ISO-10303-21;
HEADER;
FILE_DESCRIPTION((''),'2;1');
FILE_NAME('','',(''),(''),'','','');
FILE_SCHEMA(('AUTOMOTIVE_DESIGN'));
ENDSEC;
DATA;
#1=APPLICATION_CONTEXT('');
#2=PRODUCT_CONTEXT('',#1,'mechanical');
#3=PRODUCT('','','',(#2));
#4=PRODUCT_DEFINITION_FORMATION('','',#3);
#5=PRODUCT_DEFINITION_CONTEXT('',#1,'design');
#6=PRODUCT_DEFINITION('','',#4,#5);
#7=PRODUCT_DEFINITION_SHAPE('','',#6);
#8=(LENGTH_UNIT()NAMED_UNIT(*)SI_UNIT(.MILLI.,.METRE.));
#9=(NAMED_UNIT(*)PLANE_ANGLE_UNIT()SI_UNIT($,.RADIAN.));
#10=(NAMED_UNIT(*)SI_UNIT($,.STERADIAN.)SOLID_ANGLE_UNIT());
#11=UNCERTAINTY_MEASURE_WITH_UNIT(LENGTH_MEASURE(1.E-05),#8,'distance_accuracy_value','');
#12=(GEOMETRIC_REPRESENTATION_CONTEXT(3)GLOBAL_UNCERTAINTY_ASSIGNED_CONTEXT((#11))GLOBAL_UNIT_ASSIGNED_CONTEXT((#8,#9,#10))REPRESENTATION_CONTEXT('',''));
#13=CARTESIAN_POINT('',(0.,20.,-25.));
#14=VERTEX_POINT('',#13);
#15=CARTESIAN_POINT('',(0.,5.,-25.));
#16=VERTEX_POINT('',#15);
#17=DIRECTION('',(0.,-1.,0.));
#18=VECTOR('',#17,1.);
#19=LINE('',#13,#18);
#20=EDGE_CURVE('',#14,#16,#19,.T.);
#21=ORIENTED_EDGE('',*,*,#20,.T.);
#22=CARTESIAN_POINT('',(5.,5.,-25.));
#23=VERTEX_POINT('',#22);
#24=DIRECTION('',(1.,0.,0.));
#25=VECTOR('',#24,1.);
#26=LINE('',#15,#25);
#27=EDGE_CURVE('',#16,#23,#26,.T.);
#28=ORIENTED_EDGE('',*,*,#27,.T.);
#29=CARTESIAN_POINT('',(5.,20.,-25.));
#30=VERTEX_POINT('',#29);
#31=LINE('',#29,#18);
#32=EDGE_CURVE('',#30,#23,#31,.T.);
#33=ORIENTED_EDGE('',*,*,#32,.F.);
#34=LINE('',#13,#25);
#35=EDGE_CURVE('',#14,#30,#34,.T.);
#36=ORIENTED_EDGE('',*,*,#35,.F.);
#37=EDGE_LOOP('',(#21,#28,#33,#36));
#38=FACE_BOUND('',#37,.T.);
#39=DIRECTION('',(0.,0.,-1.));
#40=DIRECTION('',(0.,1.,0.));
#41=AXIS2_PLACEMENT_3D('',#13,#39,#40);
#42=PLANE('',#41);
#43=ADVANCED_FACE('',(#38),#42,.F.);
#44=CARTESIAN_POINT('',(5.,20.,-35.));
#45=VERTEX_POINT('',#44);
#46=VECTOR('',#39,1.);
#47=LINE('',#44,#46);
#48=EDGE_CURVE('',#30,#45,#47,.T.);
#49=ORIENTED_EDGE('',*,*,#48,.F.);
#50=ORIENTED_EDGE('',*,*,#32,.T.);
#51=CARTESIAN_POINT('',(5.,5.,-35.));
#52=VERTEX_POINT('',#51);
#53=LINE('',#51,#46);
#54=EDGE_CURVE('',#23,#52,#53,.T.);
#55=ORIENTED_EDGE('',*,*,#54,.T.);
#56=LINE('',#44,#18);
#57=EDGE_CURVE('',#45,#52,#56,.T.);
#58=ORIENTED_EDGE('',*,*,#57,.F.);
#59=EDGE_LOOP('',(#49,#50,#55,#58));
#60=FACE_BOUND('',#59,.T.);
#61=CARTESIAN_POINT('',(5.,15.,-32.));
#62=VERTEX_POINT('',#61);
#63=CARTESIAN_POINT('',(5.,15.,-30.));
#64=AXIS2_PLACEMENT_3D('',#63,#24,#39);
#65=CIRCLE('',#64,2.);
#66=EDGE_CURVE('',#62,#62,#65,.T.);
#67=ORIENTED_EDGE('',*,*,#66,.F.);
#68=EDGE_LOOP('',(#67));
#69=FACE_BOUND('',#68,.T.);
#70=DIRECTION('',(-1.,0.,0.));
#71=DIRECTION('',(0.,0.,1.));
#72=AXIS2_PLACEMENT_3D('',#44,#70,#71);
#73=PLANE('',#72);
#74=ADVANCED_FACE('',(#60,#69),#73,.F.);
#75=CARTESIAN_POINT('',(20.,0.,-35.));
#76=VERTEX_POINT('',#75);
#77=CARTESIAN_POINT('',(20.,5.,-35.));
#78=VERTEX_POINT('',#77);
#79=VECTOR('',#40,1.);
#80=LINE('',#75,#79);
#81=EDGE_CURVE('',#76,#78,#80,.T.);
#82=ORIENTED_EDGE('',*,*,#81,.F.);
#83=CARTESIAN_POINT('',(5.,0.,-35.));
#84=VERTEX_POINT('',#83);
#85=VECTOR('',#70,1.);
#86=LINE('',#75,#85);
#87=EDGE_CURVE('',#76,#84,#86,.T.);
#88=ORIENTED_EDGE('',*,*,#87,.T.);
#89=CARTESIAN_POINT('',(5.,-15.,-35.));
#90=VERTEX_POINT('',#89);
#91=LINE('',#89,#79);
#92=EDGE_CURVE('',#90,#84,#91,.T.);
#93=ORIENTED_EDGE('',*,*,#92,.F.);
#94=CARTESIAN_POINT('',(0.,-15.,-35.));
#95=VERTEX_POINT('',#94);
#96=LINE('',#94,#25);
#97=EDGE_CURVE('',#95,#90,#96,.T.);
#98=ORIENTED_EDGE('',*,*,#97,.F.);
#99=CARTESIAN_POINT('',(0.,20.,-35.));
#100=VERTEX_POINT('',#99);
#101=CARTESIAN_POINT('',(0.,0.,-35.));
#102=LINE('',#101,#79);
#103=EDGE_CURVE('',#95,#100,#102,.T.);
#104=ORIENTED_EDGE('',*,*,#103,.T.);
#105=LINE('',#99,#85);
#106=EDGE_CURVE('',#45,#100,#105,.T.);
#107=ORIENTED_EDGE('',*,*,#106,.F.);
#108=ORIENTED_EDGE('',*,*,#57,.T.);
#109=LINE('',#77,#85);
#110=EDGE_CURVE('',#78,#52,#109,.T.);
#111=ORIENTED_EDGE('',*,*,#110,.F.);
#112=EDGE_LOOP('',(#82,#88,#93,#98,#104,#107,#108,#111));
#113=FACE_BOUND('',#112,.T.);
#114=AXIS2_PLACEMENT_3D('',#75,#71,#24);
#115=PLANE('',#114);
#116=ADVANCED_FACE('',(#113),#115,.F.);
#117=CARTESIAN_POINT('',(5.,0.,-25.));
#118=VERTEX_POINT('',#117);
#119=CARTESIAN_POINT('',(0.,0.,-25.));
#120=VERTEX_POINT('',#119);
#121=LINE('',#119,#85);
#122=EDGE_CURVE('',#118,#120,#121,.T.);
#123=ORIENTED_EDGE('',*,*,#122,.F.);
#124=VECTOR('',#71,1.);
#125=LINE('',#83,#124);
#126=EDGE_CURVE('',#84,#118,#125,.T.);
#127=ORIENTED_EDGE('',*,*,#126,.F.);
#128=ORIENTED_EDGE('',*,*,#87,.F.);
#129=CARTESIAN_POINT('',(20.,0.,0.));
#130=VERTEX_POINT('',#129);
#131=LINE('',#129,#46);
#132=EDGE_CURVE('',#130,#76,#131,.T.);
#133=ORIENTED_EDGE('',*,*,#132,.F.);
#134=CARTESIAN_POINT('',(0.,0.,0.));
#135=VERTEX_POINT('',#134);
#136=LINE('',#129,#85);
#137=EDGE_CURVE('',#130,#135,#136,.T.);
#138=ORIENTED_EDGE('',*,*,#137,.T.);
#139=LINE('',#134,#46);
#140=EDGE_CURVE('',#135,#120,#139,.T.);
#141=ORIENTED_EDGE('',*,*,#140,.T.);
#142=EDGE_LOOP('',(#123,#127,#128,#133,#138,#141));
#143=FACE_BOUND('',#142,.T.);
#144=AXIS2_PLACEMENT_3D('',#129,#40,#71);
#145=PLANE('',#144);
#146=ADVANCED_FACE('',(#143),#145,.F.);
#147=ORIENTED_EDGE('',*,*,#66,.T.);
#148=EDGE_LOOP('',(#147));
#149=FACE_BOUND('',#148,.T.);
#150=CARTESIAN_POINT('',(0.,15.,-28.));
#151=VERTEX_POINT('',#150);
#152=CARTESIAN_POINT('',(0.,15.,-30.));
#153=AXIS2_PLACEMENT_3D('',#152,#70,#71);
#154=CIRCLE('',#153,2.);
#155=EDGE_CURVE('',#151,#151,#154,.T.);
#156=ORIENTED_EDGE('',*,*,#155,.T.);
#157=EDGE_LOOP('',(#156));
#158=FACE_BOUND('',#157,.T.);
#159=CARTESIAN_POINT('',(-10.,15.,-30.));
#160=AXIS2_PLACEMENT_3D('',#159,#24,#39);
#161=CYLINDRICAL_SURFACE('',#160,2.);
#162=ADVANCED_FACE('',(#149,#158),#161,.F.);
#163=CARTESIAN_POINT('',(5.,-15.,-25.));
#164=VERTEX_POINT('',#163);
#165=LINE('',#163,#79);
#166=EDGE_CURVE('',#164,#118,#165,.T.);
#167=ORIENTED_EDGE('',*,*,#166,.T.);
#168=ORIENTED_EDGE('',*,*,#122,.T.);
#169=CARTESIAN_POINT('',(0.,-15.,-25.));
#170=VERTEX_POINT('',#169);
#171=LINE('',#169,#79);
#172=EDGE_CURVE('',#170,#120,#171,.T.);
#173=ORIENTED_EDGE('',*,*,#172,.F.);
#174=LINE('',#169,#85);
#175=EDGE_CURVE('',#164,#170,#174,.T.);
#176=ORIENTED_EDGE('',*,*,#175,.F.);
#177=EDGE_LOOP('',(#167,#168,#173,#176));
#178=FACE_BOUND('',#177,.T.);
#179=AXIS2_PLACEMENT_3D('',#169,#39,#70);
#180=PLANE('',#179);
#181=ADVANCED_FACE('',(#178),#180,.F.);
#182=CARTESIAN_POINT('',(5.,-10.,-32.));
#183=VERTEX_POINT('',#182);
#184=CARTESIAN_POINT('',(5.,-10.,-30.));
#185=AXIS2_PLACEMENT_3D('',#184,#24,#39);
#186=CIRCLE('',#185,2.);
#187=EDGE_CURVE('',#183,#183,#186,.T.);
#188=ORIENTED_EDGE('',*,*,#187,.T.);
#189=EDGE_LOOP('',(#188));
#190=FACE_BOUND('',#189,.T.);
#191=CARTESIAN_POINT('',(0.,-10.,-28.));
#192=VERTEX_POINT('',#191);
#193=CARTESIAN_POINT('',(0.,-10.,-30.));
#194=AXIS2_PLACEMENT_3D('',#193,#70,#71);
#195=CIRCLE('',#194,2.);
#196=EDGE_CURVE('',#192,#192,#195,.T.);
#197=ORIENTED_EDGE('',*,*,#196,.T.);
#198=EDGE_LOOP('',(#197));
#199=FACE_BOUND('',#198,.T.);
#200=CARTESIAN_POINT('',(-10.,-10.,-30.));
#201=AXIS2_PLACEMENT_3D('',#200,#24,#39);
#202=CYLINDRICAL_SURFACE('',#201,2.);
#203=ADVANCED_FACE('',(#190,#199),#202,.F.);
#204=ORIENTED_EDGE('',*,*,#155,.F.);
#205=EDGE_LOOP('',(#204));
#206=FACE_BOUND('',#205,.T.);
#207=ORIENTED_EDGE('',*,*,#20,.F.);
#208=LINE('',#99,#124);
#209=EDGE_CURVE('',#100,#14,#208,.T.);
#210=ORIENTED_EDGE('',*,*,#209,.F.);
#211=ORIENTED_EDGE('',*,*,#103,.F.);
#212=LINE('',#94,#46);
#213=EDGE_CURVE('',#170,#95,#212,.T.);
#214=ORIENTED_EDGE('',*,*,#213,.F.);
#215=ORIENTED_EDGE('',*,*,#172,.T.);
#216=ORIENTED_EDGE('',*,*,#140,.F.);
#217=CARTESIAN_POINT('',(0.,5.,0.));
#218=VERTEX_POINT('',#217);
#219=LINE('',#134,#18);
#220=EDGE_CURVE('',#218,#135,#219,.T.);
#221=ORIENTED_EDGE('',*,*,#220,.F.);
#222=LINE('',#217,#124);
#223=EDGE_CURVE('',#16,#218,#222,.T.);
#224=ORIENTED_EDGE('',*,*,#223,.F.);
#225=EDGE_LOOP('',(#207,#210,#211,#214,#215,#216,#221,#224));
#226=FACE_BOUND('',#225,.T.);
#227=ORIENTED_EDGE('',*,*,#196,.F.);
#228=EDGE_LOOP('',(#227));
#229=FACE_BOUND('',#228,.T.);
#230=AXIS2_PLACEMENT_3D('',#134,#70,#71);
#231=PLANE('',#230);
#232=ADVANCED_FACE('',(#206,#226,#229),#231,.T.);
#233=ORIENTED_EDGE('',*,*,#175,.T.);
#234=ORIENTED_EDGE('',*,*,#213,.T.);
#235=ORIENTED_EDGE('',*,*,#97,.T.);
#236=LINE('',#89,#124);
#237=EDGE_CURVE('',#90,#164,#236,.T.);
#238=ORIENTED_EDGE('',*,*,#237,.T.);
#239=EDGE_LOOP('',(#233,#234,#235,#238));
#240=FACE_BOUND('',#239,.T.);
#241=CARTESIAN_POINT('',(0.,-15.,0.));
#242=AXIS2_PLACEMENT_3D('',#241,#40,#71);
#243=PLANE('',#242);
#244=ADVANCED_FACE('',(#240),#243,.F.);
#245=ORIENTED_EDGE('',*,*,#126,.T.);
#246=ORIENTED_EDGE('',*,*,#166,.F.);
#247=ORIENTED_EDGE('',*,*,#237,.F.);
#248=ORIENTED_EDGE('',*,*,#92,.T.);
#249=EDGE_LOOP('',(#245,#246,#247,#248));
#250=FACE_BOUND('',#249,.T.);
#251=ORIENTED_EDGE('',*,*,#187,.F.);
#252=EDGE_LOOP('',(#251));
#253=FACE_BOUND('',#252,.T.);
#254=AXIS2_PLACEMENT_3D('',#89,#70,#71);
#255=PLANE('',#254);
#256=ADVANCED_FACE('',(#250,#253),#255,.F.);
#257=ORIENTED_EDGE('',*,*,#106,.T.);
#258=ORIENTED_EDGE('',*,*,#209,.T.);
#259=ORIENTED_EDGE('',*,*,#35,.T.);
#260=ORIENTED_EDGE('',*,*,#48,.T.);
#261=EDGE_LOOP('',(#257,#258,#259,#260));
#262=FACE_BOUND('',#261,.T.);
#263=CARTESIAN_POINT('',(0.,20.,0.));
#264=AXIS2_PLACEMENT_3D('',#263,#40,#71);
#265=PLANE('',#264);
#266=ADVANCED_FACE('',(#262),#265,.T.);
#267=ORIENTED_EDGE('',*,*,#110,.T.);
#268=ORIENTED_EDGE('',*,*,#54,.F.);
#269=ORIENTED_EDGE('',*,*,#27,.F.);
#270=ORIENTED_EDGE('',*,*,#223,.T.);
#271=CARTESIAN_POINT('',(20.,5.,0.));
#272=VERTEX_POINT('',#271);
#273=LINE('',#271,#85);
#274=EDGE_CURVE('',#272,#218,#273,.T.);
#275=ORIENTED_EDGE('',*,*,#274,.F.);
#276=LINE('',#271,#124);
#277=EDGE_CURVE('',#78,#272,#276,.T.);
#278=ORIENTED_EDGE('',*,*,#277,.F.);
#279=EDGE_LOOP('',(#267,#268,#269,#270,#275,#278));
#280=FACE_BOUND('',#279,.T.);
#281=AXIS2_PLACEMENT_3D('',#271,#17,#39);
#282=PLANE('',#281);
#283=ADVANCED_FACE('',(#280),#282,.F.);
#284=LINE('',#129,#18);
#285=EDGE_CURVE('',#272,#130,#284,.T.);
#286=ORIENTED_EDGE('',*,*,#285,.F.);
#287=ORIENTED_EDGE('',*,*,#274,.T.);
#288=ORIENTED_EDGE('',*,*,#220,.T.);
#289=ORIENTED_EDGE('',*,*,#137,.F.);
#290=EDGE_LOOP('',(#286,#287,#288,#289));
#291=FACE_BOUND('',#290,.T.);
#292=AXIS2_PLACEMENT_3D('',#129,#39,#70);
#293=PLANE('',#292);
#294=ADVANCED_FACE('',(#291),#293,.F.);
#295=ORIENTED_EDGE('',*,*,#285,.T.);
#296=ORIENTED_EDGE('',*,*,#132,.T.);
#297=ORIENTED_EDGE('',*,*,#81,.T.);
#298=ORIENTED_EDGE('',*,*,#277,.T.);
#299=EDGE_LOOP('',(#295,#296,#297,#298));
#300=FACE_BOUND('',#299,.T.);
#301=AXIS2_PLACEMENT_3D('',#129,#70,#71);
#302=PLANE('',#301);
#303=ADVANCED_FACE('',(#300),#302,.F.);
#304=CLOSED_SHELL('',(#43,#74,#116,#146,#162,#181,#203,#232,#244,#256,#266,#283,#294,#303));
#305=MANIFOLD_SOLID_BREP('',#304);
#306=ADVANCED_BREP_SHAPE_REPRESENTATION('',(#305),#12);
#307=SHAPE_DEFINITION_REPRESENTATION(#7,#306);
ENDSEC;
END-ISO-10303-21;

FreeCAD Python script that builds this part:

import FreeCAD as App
import Part
import Sketcher

V = App.Vector


def add_polygon(sketch, points):
    """Adds a closed chain of lines whose ends are joined by coincident constraints."""
    first, n = sketch.GeometryCount, len(points)
    for a, b in zip(points, points[1:] + points[:1]):
        sketch.addGeometry(Part.LineSegment(App.Vector(*a, 0), App.Vector(*b, 0)), False)
    for i in range(n):
        sketch.addConstraint(Sketcher.Constraint("Coincident", first + i, 2, first + (i + 1) % n, 1))

doc = App.newDocument("Part")
body = doc.addObject("PartDesign::Body", "Body")

# Sketch on YZ plane
sketch1 = doc.addObject("Sketcher::SketchObject", "Sketch")
body.addObject(sketch1)
sketch1.AttachmentSupport = (doc.YZ_Plane, [""])
sketch1.MapMode = "FlatFace"
add_polygon(sketch1, [(5, 0), (0, 0), (0, -35), (5, -35)])  # lines 0-3
sketch1.addConstraint([
    Sketcher.Constraint("Horizontal", 0),
    Sketcher.Constraint("Vertical", 1),
    Sketcher.Constraint("Horizontal", 2),
    Sketcher.Constraint("Vertical", 3),
    Sketcher.Constraint("Coincident", 0, 2, -1, 1),
    Sketcher.Constraint("DistanceX", 0, 2, 0, 1, 5.0),
    Sketcher.Constraint("DistanceY", 1, 2, 1, 1, 35.0),
])
pad1 = doc.addObject("PartDesign::Pad", "Pad")
body.addObject(pad1)
pad1.Profile = sketch1
pad1.Length = 20

# Sketch on XZ plane
sketch2 = doc.addObject("Sketcher::SketchObject", "Sketch001")
body.addObject(sketch2)
sketch2.AttachmentSupport = (doc.XZ_Plane, [""])
sketch2.MapMode = "FlatFace"
sketch2.AttachmentOffset = App.Placement(V(0, 0, -5), App.Rotation())
add_polygon(sketch2, [(0, -35), (0, -25), (5, -25), (5, -35)])  # lines 0-3
sketch2.addConstraint([
    Sketcher.Constraint("Vertical", 0),
    Sketcher.Constraint("Horizontal", 1),
    Sketcher.Constraint("Vertical", 2),
    Sketcher.Constraint("Horizontal", 3),
    Sketcher.Constraint("PointOnObject", 0, 2, -2),
    Sketcher.Constraint("DistanceX", 1, 1, 1, 2, 5.0),
    Sketcher.Constraint("DistanceY", 0, 1, 0, 2, 10.0),
    Sketcher.Constraint("DistanceY", 0, 2, -1, 1, 25.0),
])
pad2 = doc.addObject("PartDesign::Pad", "Pad001")
body.addObject(pad2)
pad2.Profile = sketch2
pad2.Length = 15
pad2.Reversed = True

# Sketch on XZ plane
sketch3 = doc.addObject("Sketcher::SketchObject", "Sketch002")
body.addObject(sketch3)
sketch3.AttachmentSupport = (doc.XZ_Plane, [""])
sketch3.MapMode = "FlatFace"
add_polygon(sketch3, [(0, -25), (0, -35), (5, -35), (5, -25)])  # lines 0-3
sketch3.addConstraint([
    Sketcher.Constraint("Vertical", 0),
    Sketcher.Constraint("Horizontal", 1),
    Sketcher.Constraint("Vertical", 2),
    Sketcher.Constraint("Horizontal", 3),
    Sketcher.Constraint("PointOnObject", 0, 2, -2),
    Sketcher.Constraint("DistanceX", 1, 1, 1, 2, 5.0),
    Sketcher.Constraint("DistanceY", 0, 2, 0, 1, 10.0),
    Sketcher.Constraint("DistanceY", 0, 2, -1, 1, 35.0),
])
pad3 = doc.addObject("PartDesign::Pad", "Pad002")
body.addObject(pad3)
pad3.Profile = sketch3
pad3.Length = 15

# Sketch on YZ plane
sketch4 = doc.addObject("Sketcher::SketchObject", "Sketch003")
body.addObject(sketch4)
sketch4.AttachmentSupport = (doc.YZ_Plane, [""])
sketch4.MapMode = "FlatFace"
sketch4.AttachmentOffset = App.Placement(V(0, 0, 5), App.Rotation())
sketch4.addGeometry([
    Part.Circle(V(15, -30, 0), V(0, 0, 1), 2),
    Part.Circle(V(-10, -30, 0), V(0, 0, 1), 2),
], False)
sketch4.addConstraint([
    Sketcher.Constraint("Equal", 0, 1),
    Sketcher.Constraint("Horizontal", 0, 3, 1, 3),
    Sketcher.Constraint("Diameter", 0, 4.0),
    Sketcher.Constraint("DistanceX", -1, 1, 0, 3, 15.0),
    Sketcher.Constraint("DistanceY", 0, 3, -1, 1, 30.0),
    Sketcher.Constraint("DistanceX", 1, 3, -1, 1, 10.0),
])
pocket1 = doc.addObject("PartDesign::Pocket", "Pocket")
body.addObject(pocket1)
pocket1.Profile = sketch4
pocket1.Length = 15

doc.recompute()
